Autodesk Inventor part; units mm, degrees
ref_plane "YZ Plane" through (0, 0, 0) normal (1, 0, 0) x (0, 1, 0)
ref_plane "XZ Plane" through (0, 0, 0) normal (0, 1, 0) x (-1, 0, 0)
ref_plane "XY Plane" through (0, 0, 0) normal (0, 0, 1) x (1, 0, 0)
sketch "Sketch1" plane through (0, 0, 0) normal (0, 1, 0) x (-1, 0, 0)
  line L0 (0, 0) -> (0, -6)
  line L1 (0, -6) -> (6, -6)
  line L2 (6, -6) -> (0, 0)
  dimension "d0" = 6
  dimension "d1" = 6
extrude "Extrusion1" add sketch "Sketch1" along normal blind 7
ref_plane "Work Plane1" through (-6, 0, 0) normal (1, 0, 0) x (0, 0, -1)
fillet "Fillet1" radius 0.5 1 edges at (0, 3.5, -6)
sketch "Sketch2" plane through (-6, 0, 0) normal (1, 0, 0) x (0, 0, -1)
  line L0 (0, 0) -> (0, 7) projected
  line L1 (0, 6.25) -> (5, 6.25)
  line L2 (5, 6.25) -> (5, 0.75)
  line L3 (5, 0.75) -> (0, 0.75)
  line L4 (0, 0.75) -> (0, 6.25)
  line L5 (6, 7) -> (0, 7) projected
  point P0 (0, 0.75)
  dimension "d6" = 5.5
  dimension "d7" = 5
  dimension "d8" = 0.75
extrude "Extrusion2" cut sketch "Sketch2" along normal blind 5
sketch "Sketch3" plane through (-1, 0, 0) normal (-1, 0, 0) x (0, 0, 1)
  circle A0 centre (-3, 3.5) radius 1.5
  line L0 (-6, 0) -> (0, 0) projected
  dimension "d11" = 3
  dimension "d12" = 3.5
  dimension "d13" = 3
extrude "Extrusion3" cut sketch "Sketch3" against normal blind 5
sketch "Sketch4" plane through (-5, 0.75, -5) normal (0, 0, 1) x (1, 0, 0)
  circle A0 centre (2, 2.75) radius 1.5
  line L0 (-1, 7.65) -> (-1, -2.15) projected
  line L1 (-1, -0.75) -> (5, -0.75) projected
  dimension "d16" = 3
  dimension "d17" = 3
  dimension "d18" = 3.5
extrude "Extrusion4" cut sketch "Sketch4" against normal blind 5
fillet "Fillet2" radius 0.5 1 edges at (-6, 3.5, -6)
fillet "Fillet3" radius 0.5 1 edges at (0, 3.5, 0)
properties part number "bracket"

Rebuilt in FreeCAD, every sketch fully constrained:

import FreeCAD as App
import Part
import Sketcher
from FreeCAD import Vector
Q = App.Units.Quantity


def edges_at(feature, points):
    """Names of the edges that pass closest to the given points."""
    edges = feature.Shape.Edges
    near = lambda p: min(range(len(edges)), key=lambda i: edges[i].distToShape(Part.Vertex(*p))[0])
    return sorted({f"Edge{near(p) + 1}" for p in points})

doc = App.newDocument("Part")
body = doc.addObject("PartDesign::Body", "Body")

# Sketch on XZ plane
sketch1 = doc.addObject("Sketcher::SketchObject", "Sketch")
body.addObject(sketch1)
sketch1.AttachmentSupport = (doc.XZ_Plane, [""])
sketch1.MapMode = "FlatFace"
sketch1.addGeometry([
    Part.LineSegment(Vector(-6, -6, 0), Vector(0, 0, 0)),
    Part.LineSegment(Vector(0, 0, 0), Vector(0, -6, 0)),
    Part.LineSegment(Vector(0, -6, 0), Vector(-6, -6, 0)),
], False)
sketch1.addConstraint([
    Sketcher.Constraint("Coincident", 0, 2, 1, 1),
    Sketcher.Constraint("Coincident", 1, 2, 2, 1),
    Sketcher.Constraint("Coincident", 2, 2, 0, 1),
    Sketcher.Constraint("Vertical", 1),
    Sketcher.Constraint("Horizontal", 2),
    Sketcher.Constraint("Coincident", 0, 2, -1, 1),
    Sketcher.Constraint("Equal", 2, 1),
    Sketcher.Constraint("DistanceX", 2, 2, 2, 1, Q("6 mm")),
])
pad1 = doc.addObject("PartDesign::Pad", "Pad")
body.addObject(pad1)
pad1.Profile = sketch1
pad1.Length = 7
pad1.Reversed = True
doc.recompute()

fillet = doc.addObject("PartDesign::Fillet", "Fillet")
body.addObject(fillet)
fillet.Base = (pad1, edges_at(pad1, [(0, 3.5, -6)]))
fillet.Radius = 0.5

# Sketch on YZ plane
sketch2 = doc.addObject("Sketcher::SketchObject", "Sketch001")
body.addObject(sketch2)
sketch2.AttachmentSupport = (doc.YZ_Plane, [""])
sketch2.MapMode = "FlatFace"
sketch2.AttachmentOffset = App.Placement(Vector(0, 0, -6), App.Rotation())
sketch2.addGeometry([
    Part.LineSegment(Vector(6, 0, 0), Vector(1, 0, 0)),
    Part.LineSegment(Vector(1, 0, 0), Vector(1, -5, 0)),
    Part.LineSegment(Vector(1, -5, 0), Vector(6, -5, 0)),
    Part.LineSegment(Vector(6, -5, 0), Vector(6, 0, 0)),
], False)
sketch2.addConstraint([
    Sketcher.Constraint("Coincident", 0, 2, 1, 1),
    Sketcher.Constraint("Coincident", 1, 2, 2, 1),
    Sketcher.Constraint("Coincident", 2, 2, 3, 1),
    Sketcher.Constraint("Coincident", 3, 2, 0, 1),
    Sketcher.Constraint("Horizontal", 0),
    Sketcher.Constraint("Vertical", 1),
    Sketcher.Constraint("Horizontal", 2),
    Sketcher.Constraint("Vertical", 3),
    Sketcher.Constraint("PointOnObject", 0, 2, -1),
    Sketcher.Constraint("DistanceY", 1, 2, 1, 1, Q("5 mm")),
    Sketcher.Constraint("DistanceX", 0, 2, 0, 1, Q("5.5 mm")),
    Sketcher.Constraint("DistanceX", -1, 1, 0, 2, Q("0.75 mm")),
])
pocket1 = doc.addObject("PartDesign::Pocket", "Pocket")
body.addObject(pocket1)
pocket1.Profile = sketch2
pocket1.Length = 5
pocket1.Reversed = True

# Sketch on YZ plane
sketch3 = doc.addObject("Sketcher::SketchObject", "Sketch002")
body.addObject(sketch3)
sketch3.AttachmentSupport = (doc.YZ_Plane, [""])
sketch3.MapMode = "FlatFace"
sketch3.AttachmentOffset = App.Placement(Vector(0, 0, -1), App.Rotation())
sketch3.addGeometry(Part.Circle(Vector(3.5, -3, 0), Vector(0, 0, 1), 1.5), False)
sketch3.addConstraint([
    Sketcher.Constraint("Diameter", 0, Q("3 mm")),
    Sketcher.Constraint("DistanceY", 0, 3, -1, 1, Q("3 mm")),
    Sketcher.Constraint("DistanceX", -1, 1, 0, 3, Q("3.5 mm")),
])
pocket2 = doc.addObject("PartDesign::Pocket", "Pocket001")
body.addObject(pocket2)
pocket2.Profile = sketch3
pocket2.Length = 5
pocket2.Reversed = True

# Sketch on XY plane
sketch4 = doc.addObject("Sketcher::SketchObject", "Sketch003")
body.addObject(sketch4)
sketch4.AttachmentSupport = (doc.XY_Plane, [""])
sketch4.MapMode = "FlatFace"
sketch4.AttachmentOffset = App.Placement(Vector(0, 0, -5), App.Rotation())
sketch4.addGeometry(Part.Circle(Vector(-3, 3.5, 0), Vector(0, 0, 1), 1.5), False)
sketch4.addConstraint([
    Sketcher.Constraint("Diameter", 0, Q("3 mm")),
    Sketcher.Constraint("DistanceX", 0, 3, -1, 1, Q("3 mm")),
    Sketcher.Constraint("DistanceY", -1, 1, 0, 3, Q("3.5 mm")),
])
pocket3 = doc.addObject("PartDesign::Pocket", "Pocket002")
body.addObject(pocket3)
pocket3.Profile = sketch4
pocket3.Length = 5
doc.recompute()

fillet2 = doc.addObject("PartDesign::Fillet", "Fillet001")
body.addObject(fillet2)
fillet2.Base = (pocket3, edges_at(pocket3, [(-6, 3.5, -6)]))
fillet2.Radius = 0.5
doc.recompute()

fillet3 = doc.addObject("PartDesign::Fillet", "Fillet002")
body.addObject(fillet3)
fillet3.Base = (fillet2, edges_at(fillet2, [(0, 3.5, 0)]))
fillet3.Radius = 0.5

doc.recompute()
